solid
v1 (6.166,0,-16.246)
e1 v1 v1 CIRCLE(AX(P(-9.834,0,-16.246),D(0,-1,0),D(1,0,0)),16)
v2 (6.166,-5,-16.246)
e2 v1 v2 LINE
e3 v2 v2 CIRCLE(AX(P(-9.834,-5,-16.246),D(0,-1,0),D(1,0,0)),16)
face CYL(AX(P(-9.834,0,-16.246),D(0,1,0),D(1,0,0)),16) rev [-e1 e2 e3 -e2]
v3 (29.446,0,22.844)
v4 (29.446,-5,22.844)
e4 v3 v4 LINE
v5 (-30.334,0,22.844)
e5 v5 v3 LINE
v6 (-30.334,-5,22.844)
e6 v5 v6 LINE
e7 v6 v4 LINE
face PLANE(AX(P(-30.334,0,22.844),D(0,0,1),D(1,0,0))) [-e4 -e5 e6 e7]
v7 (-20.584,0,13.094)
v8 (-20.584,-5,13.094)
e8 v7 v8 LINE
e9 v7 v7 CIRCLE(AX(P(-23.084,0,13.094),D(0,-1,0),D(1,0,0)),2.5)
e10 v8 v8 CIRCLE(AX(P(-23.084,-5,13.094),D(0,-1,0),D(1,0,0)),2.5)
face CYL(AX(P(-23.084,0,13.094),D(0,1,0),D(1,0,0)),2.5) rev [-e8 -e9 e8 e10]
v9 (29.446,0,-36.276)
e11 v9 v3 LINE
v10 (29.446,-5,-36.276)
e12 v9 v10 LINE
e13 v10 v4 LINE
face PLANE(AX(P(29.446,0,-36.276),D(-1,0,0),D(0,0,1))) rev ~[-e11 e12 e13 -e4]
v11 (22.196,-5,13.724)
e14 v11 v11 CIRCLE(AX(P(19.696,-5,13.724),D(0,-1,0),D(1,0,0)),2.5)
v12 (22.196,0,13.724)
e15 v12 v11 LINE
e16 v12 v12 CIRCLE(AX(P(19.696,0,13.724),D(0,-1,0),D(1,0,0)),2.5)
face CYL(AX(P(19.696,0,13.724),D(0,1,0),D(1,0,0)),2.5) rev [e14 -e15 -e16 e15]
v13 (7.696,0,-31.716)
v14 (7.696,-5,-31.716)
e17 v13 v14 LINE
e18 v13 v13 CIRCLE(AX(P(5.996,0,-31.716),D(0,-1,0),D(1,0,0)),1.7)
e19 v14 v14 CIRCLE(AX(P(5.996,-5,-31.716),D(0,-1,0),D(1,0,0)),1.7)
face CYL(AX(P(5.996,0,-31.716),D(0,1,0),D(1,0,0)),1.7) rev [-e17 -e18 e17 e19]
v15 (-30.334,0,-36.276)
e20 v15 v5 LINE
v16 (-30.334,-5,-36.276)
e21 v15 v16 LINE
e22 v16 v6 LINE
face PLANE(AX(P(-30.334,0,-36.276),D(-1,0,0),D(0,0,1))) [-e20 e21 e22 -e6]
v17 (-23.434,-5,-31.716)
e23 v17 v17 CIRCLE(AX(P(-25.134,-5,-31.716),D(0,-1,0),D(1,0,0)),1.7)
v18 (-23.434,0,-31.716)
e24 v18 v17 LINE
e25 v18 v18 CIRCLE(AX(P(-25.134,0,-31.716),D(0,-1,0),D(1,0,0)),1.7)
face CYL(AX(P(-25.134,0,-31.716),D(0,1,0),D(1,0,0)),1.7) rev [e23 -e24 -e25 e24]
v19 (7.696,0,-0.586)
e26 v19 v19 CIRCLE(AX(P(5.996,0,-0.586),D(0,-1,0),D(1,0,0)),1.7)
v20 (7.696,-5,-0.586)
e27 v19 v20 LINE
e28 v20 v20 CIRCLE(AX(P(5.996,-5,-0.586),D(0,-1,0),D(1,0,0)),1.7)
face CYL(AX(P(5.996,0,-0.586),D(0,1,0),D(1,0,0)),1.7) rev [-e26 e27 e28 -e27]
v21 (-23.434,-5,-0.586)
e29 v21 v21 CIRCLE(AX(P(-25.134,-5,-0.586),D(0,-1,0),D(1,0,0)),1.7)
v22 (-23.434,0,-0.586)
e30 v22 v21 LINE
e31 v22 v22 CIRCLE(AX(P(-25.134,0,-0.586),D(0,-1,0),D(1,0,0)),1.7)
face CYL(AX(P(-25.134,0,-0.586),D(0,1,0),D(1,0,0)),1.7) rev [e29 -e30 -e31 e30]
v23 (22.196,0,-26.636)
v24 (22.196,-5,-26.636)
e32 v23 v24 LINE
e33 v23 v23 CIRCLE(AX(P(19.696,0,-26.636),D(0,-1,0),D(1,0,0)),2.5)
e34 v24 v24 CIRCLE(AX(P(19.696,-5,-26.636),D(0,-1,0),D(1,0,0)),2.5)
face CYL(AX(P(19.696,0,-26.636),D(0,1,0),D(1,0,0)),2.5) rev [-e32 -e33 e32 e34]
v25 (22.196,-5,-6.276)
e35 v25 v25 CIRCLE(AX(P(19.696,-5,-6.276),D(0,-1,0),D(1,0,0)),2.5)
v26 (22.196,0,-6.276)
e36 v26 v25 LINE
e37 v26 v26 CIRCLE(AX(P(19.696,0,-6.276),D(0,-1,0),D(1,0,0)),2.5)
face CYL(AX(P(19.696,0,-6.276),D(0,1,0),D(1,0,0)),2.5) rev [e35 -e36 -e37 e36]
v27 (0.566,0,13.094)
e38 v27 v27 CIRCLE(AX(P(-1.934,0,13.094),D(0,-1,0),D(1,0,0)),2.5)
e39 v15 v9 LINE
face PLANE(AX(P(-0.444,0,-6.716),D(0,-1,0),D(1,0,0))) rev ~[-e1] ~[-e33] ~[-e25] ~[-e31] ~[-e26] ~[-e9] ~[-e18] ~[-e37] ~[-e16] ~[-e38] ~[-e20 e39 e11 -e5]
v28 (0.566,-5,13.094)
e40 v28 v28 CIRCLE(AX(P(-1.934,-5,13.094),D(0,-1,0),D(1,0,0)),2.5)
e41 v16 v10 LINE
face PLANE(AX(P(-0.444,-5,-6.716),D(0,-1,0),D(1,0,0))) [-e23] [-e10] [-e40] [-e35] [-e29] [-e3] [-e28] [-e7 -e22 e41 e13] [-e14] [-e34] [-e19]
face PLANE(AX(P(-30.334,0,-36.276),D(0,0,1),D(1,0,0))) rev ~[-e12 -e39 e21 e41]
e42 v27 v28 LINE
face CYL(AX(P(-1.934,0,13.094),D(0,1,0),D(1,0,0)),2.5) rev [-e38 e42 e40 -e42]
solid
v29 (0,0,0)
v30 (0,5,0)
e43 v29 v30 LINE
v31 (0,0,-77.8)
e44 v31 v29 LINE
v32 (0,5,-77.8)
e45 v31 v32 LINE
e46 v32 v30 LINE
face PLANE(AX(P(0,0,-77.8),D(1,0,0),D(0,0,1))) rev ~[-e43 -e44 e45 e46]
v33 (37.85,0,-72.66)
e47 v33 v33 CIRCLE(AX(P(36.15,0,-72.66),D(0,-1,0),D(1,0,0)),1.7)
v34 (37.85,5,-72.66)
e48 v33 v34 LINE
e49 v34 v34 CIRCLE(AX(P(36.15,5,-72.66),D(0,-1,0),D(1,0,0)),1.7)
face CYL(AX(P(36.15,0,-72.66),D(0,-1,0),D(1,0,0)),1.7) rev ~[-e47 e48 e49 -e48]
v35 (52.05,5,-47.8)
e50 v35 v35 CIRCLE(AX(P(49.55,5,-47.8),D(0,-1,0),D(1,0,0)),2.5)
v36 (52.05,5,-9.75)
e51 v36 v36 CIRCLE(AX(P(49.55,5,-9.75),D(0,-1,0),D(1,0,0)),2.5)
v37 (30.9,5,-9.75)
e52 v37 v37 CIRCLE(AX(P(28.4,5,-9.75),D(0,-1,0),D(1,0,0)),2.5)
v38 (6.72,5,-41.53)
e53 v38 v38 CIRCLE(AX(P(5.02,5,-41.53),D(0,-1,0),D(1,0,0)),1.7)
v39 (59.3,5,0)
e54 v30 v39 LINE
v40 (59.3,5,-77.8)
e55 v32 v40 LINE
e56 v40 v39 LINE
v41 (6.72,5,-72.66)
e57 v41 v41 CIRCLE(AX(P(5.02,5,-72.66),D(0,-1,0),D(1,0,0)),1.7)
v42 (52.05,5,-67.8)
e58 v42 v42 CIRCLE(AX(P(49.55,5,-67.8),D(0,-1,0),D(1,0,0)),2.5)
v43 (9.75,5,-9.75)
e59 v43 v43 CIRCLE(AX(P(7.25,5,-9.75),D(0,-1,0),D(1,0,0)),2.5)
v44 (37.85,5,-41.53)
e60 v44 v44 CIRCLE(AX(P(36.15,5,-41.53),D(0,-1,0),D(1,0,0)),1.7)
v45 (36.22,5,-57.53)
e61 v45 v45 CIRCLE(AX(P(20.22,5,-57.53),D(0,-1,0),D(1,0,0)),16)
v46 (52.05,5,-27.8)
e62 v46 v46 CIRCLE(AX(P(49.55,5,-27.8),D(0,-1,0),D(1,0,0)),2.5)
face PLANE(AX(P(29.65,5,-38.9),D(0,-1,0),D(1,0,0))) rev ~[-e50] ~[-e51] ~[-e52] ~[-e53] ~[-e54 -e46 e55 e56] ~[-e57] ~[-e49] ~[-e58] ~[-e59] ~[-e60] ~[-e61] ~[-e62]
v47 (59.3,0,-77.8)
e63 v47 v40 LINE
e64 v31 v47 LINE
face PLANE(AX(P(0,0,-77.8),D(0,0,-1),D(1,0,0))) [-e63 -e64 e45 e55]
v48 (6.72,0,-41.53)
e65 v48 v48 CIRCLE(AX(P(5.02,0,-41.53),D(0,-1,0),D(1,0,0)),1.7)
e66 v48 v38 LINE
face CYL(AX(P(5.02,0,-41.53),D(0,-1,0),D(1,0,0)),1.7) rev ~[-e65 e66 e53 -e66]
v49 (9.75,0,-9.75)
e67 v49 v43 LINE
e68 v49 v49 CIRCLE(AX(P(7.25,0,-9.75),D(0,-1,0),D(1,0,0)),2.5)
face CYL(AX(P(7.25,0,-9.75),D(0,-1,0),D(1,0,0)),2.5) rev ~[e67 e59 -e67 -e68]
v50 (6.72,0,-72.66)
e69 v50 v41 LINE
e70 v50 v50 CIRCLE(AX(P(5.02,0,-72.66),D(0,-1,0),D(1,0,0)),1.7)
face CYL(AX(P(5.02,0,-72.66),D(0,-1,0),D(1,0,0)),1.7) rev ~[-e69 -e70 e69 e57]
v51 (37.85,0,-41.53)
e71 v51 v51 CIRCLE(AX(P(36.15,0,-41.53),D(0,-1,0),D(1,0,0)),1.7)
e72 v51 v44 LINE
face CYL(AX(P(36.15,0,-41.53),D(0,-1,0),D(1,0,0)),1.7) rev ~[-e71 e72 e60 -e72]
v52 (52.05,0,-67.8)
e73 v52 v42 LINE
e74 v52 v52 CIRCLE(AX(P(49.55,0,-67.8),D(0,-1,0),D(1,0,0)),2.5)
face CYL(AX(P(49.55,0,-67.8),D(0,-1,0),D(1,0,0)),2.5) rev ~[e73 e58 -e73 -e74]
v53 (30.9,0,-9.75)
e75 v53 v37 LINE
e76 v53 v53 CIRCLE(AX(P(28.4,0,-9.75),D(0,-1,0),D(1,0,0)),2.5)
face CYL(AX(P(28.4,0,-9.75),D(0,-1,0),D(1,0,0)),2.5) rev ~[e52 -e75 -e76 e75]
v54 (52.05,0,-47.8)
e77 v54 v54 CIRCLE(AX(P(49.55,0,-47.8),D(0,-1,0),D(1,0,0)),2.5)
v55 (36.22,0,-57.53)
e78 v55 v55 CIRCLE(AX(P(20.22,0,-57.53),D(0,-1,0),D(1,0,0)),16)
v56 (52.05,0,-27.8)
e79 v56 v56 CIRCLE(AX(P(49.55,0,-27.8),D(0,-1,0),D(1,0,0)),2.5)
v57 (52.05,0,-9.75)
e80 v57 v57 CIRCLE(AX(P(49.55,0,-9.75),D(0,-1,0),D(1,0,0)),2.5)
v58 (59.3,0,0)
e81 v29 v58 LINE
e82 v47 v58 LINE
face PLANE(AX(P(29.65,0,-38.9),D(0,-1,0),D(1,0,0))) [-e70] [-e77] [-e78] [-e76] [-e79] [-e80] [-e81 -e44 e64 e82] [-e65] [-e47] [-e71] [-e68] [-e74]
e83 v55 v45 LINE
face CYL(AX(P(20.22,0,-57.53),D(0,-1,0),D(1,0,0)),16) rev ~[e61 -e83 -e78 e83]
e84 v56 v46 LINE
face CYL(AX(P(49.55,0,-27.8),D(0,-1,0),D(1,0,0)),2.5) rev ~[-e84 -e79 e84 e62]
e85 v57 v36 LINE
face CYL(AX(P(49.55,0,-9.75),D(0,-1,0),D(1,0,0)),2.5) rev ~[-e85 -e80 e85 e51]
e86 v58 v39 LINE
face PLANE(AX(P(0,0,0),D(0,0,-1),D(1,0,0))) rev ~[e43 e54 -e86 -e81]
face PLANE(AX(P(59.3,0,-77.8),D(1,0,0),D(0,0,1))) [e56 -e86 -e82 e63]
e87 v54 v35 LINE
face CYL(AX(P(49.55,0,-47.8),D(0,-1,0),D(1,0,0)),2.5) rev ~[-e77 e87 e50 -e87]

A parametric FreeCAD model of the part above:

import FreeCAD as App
import Part
import Sketcher
from FreeCAD import Vector
Q = App.Units.Quantity


def add_polygon(sketch, points):
    """Adds a closed chain of lines whose ends are joined by coincident constraints."""
    first, n = sketch.GeometryCount, len(points)
    for a, b in zip(points, points[1:] + points[:1]):
        sketch.addGeometry(Part.LineSegment(App.Vector(*a, 0), App.Vector(*b, 0)), False)
    for i in range(n):
        sketch.addConstraint(Sketcher.Constraint("Coincident", first + i, 2, first + (i + 1) % n, 1))

doc = App.newDocument("Part")
params = doc.addObject("Spreadsheet::Sheet", "Params")
for row, (alias, value) in enumerate([
    ("sketch1_diameter", "32 mm"),
    ("sketch1_diameter2", "5 mm"),
    ("sketch1_diameter3", "3.4 mm"),
    ("sketch1_width", "59.3 mm"),
    ("sketch1_height", "77.8 mm"),
    ("pad1_length", "5 mm"),
    ("sketch2_diameter", "32 mm"),
    ("sketch2_diameter2", "5 mm"),
    ("sketch2_diameter3", "3.4 mm"),
    ("sketch2_width", "59.78 mm"),
    ("sketch2_height", "59.12 mm"),
    ("pad2_length", "5 mm"),
], start=1):
    params.set(f"A{row}", alias)
    params.set(f"B{row}", "=" + value)
    params.setAlias(f"B{row}", alias)

body = doc.addObject("PartDesign::Body", "Body")

# Sketch on XZ plane
sketch1 = body.newObject("Sketcher::SketchObject", "Sketch")
sketch1.AttachmentSupport = (doc.getObject("XZ_Plane"), [""])
sketch1.MapMode = "FlatFace"
add_polygon(sketch1, [(0, 0), (0, -77.8), (59.3, -77.8), (59.3, 0)])  # lines 0-3
sketch1.addGeometry(Part.Circle(Vector(5, -72.7, 0), Vector(0, 0, 1), 1.7), False)  # 4
sketch1.addGeometry(Part.Circle(Vector(5, -41.5, 0), Vector(0, 0, 1), 1.7), False)  # 5
sketch1.addGeometry(Part.Circle(Vector(20.2, -57.5, 0), Vector(0, 0, 1), 16), False)  # 6
sketch1.addGeometry(Part.Circle(Vector(36.1, -72.7, 0), Vector(0, 0, 1), 1.7), False)  # 7
sketch1.addGeometry(Part.Circle(Vector(49.5, -67.8, 0), Vector(0, 0, 1), 2.5), False)  # 8
sketch1.addGeometry(Part.Circle(Vector(36.1, -41.5, 0), Vector(0, 0, 1), 1.7), False)  # 9
sketch1.addGeometry(Part.Circle(Vector(49.5, -47.8, 0), Vector(0, 0, 1), 2.5), False)  # 10
sketch1.addGeometry(Part.Circle(Vector(7.2, -9.8, 0), Vector(0, 0, 1), 2.5), False)  # 11
sketch1.addGeometry(Part.Circle(Vector(49.5, -27.8, 0), Vector(0, 0, 1), 2.5), False)  # 12
sketch1.addGeometry(Part.Circle(Vector(28.4, -9.8, 0), Vector(0, 0, 1), 2.5), False)  # 13
sketch1.addGeometry(Part.Circle(Vector(49.5, -9.8, 0), Vector(0, 0, 1), 2.5), False)  # 14
sketch1.addConstraint([
    Sketcher.Constraint("Vertical", 0),
    Sketcher.Constraint("Horizontal", 1),
    Sketcher.Constraint("Vertical", 2),
    Sketcher.Constraint("Horizontal", 3),
    Sketcher.Constraint("Coincident", 3, 2, -1, 1),
    Sketcher.Constraint("Equal", 4, 5),
    Sketcher.Constraint("Equal", 5, 7),
    Sketcher.Constraint("Equal", 7, 9),
    Sketcher.Constraint("Equal", 8, 10),
    Sketcher.Constraint("Equal", 10, 11),
    Sketcher.Constraint("Equal", 11, 12),
    Sketcher.Constraint("Equal", 12, 13),
    Sketcher.Constraint("Equal", 13, 14),
    Sketcher.Constraint("Horizontal", 4, 3, 7, 3),
    Sketcher.Constraint("Horizontal", 5, 3, 9, 3),
    Sketcher.Constraint("Horizontal", 11, 3, 13, 3),
    Sketcher.Constraint("Horizontal", 13, 3, 14, 3),
    Sketcher.Constraint("Vertical", 4, 3, 5, 3),
    Sketcher.Constraint("Vertical", 7, 3, 9, 3),
    Sketcher.Constraint("Vertical", 8, 3, 10, 3),
    Sketcher.Constraint("Vertical", 10, 3, 12, 3),
    Sketcher.Constraint("Vertical", 12, 3, 14, 3),
    Sketcher.Constraint("Diameter", 6, Q("32 mm")),
    Sketcher.Constraint("Diameter", 8, Q("5 mm")),
    Sketcher.Constraint("Diameter", 4, Q("3.4 mm")),
    Sketcher.Constraint("DistanceX", 1, 1, 1, 2, Q("59.3 mm")),
    Sketcher.Constraint("DistanceY", 0, 2, 0, 1, Q("77.8 mm")),
    Sketcher.Constraint("DistanceY", 6, 3, 5, 3, Q("16 mm")),
    Sketcher.Constraint("DistanceY", 8, 3, 10, 3, Q("20 mm")),
    Sketcher.Constraint("DistanceY", 10, 3, 12, 3, Q("20 mm")),
    Sketcher.Constraint("DistanceY", 0, 2, 8, 3, Q("10 mm")),
    Sketcher.Constraint("DistanceX", -1, 1, 13, 3, Q("28.4 mm")),
    Sketcher.Constraint("DistanceX", 4, 3, 6, 3, Q("15.2 mm")),
    Sketcher.Constraint("DistanceX", 7, 3, 8, 3, Q("13.4 mm")),
    Sketcher.Constraint("DistanceX", 11, 3, 9, 3, Q("28.9 mm")),
    Sketcher.Constraint("DistanceX", -1, 1, 4, 3, Q("5.02 mm")),
    Sketcher.Constraint("DistanceY", 4, 3, -1, 1, Q("72.66 mm")),
    Sketcher.Constraint("DistanceY", 5, 3, -1, 1, Q("41.53 mm")),
    Sketcher.Constraint("DistanceX", -1, 1, 7, 3, Q("36.15 mm")),
    Sketcher.Constraint("DistanceY", 11, 3, -1, 1, Q("9.75 mm")),
])
sketch1.setExpression("Constraints[26]", "Params.sketch1_diameter")
sketch1.setExpression("Constraints[27]", "Params.sketch1_diameter2")
sketch1.setExpression("Constraints[28]", "Params.sketch1_diameter3")
sketch1.setExpression("Constraints[29]", "Params.sketch1_width")
sketch1.setExpression("Constraints[30]", "Params.sketch1_height")
pad1 = body.newObject("PartDesign::Pad", "Pad")
pad1.Profile = sketch1
pad1.setExpression("Length", "Params.pad1_length")
pad1.Reversed = True
body2 = doc.addObject("PartDesign::Body", "Body001")

# Sketch on XZ plane
sketch2 = body2.newObject("Sketcher::SketchObject", "Sketch001")
sketch2.AttachmentSupport = (doc.getObject("XZ_Plane001"), [""])
sketch2.MapMode = "FlatFace"
add_polygon(sketch2, [(-30.3, 22.8), (-30.3, -36.3), (29.4, -36.3), (29.4, 22.8)])  # lines 0-3
sketch2.addGeometry(Part.Circle(Vector(-25.1, -31.7, 0), Vector(0, 0, 1), 1.7), False)  # 4
sketch2.addGeometry(Part.Circle(Vector(-9.8, -16.2, 0), Vector(0, 0, 1), 16), False)  # 5
sketch2.addGeometry(Part.Circle(Vector(6, -31.7, 0), Vector(0, 0, 1), 1.7), False)  # 6
sketch2.addGeometry(Part.Circle(Vector(19.7, -26.6, 0), Vector(0, 0, 1), 2.5), False)  # 7
sketch2.addGeometry(Part.Circle(Vector(-25.1, -0.6, 0), Vector(0, 0, 1), 1.7), False)  # 8
sketch2.addGeometry(Part.Circle(Vector(-23.1, 13.1, 0), Vector(0, 0, 1), 2.5), False)  # 9
sketch2.addGeometry(Part.Circle(Vector(6, -0.6, 0), Vector(0, 0, 1), 1.7), False)  # 10
sketch2.addGeometry(Part.Circle(Vector(19.7, -6.3, 0), Vector(0, 0, 1), 2.5), False)  # 11
sketch2.addGeometry(Part.Circle(Vector(-1.9, 13.1, 0), Vector(0, 0, 1), 2.5), False)  # 12
sketch2.addGeometry(Part.Circle(Vector(19.7, 13.7, 0), Vector(0, 0, 1), 2.5), False)  # 13
sketch2.addConstraint([
    Sketcher.Constraint("Vertical", 0),
    Sketcher.Constraint("Horizontal", 1),
    Sketcher.Constraint("Vertical", 2),
    Sketcher.Constraint("Horizontal", 3),
    Sketcher.Constraint("Equal", 4, 6),
    Sketcher.Constraint("Equal", 6, 8),
    Sketcher.Constraint("Equal", 7, 9),
    Sketcher.Constraint("Equal", 8, 10),
    Sketcher.Constraint("Equal", 9, 11),
    Sketcher.Constraint("Equal", 11, 12),
    Sketcher.Constraint("Equal", 12, 13),
    Sketcher.Constraint("Horizontal", 4, 3, 6, 3),
    Sketcher.Constraint("Horizontal", 8, 3, 10, 3),
    Sketcher.Constraint("Horizontal", 9, 3, 12, 3),
    Sketcher.Constraint("Vertical", 4, 3, 8, 3),
    Sketcher.Constraint("Vertical", 6, 3, 10, 3),
    Sketcher.Constraint("Vertical", 7, 3, 11, 3),
    Sketcher.Constraint("Vertical", 11, 3, 13, 3),
    Sketcher.Constraint("Diameter", 5, Q("32 mm")),
    Sketcher.Constraint("Diameter", 7, Q("5 mm")),
    Sketcher.Constraint("Diameter", 4, Q("3.4 mm")),
    Sketcher.Constraint("DistanceY", 11, 3, 13, 3, Q("20 mm")),
    Sketcher.Constraint("DistanceY", 1, 2, 11, 3, Q("30 mm")),
    Sketcher.Constraint("DistanceX", 1, 1, 1, 2, Q("59.78 mm")),
    Sketcher.Constraint("DistanceY", 0, 2, 0, 1, Q("59.12 mm")),
    Sketcher.Constraint("DistanceX", 4, 3, 5, 3, Q("15.3 mm")),
    Sketcher.Constraint("DistanceX", 6, 3, 7, 3, Q("13.7 mm")),
    Sketcher.Constraint("DistanceX", 8, 3, 12, 3, Q("23.2 mm")),
    Sketcher.Constraint("DistanceX", 0, 2, 4, 3, Q("5.2 mm")),
    Sketcher.Constraint("DistanceY", 4, 3, 5, 3, Q("15.47 mm")),
    Sketcher.Constraint("DistanceX", 5, 3, 6, 3, Q("15.83 mm")),
    Sketcher.Constraint("DistanceY", 6, 3, 7, 3, Q("5.08 mm")),
    Sketcher.Constraint("DistanceY", 5, 3, 8, 3, Q("15.66 mm")),
    Sketcher.Constraint("DistanceX", 8, 3, 9, 3, Q("2.05 mm")),
    Sketcher.Constraint("DistanceY", 8, 3, 9, 3, Q("13.68 mm")),
    Sketcher.Constraint("DistanceY", 11, 3, 10, 3, Q("5.69 mm")),
    Sketcher.Constraint("DistanceX", 4, 3, -1, 1, Q("25.134 mm")),
    Sketcher.Constraint("DistanceY", 4, 3, -1, 1, Q("31.716 mm")),
])
sketch2.setExpression("Constraints[22]", "Params.sketch2_diameter")
sketch2.setExpression("Constraints[23]", "Params.sketch2_diameter2")
sketch2.setExpression("Constraints[24]", "Params.sketch2_diameter3")
sketch2.setExpression("Constraints[27]", "Params.sketch2_width")
sketch2.setExpression("Constraints[28]", "Params.sketch2_height")
pad2 = body2.newObject("PartDesign::Pad", "Pad001")
pad2.Profile = sketch2
pad2.setExpression("Length", "Params.pad2_length")

doc.recompute()
